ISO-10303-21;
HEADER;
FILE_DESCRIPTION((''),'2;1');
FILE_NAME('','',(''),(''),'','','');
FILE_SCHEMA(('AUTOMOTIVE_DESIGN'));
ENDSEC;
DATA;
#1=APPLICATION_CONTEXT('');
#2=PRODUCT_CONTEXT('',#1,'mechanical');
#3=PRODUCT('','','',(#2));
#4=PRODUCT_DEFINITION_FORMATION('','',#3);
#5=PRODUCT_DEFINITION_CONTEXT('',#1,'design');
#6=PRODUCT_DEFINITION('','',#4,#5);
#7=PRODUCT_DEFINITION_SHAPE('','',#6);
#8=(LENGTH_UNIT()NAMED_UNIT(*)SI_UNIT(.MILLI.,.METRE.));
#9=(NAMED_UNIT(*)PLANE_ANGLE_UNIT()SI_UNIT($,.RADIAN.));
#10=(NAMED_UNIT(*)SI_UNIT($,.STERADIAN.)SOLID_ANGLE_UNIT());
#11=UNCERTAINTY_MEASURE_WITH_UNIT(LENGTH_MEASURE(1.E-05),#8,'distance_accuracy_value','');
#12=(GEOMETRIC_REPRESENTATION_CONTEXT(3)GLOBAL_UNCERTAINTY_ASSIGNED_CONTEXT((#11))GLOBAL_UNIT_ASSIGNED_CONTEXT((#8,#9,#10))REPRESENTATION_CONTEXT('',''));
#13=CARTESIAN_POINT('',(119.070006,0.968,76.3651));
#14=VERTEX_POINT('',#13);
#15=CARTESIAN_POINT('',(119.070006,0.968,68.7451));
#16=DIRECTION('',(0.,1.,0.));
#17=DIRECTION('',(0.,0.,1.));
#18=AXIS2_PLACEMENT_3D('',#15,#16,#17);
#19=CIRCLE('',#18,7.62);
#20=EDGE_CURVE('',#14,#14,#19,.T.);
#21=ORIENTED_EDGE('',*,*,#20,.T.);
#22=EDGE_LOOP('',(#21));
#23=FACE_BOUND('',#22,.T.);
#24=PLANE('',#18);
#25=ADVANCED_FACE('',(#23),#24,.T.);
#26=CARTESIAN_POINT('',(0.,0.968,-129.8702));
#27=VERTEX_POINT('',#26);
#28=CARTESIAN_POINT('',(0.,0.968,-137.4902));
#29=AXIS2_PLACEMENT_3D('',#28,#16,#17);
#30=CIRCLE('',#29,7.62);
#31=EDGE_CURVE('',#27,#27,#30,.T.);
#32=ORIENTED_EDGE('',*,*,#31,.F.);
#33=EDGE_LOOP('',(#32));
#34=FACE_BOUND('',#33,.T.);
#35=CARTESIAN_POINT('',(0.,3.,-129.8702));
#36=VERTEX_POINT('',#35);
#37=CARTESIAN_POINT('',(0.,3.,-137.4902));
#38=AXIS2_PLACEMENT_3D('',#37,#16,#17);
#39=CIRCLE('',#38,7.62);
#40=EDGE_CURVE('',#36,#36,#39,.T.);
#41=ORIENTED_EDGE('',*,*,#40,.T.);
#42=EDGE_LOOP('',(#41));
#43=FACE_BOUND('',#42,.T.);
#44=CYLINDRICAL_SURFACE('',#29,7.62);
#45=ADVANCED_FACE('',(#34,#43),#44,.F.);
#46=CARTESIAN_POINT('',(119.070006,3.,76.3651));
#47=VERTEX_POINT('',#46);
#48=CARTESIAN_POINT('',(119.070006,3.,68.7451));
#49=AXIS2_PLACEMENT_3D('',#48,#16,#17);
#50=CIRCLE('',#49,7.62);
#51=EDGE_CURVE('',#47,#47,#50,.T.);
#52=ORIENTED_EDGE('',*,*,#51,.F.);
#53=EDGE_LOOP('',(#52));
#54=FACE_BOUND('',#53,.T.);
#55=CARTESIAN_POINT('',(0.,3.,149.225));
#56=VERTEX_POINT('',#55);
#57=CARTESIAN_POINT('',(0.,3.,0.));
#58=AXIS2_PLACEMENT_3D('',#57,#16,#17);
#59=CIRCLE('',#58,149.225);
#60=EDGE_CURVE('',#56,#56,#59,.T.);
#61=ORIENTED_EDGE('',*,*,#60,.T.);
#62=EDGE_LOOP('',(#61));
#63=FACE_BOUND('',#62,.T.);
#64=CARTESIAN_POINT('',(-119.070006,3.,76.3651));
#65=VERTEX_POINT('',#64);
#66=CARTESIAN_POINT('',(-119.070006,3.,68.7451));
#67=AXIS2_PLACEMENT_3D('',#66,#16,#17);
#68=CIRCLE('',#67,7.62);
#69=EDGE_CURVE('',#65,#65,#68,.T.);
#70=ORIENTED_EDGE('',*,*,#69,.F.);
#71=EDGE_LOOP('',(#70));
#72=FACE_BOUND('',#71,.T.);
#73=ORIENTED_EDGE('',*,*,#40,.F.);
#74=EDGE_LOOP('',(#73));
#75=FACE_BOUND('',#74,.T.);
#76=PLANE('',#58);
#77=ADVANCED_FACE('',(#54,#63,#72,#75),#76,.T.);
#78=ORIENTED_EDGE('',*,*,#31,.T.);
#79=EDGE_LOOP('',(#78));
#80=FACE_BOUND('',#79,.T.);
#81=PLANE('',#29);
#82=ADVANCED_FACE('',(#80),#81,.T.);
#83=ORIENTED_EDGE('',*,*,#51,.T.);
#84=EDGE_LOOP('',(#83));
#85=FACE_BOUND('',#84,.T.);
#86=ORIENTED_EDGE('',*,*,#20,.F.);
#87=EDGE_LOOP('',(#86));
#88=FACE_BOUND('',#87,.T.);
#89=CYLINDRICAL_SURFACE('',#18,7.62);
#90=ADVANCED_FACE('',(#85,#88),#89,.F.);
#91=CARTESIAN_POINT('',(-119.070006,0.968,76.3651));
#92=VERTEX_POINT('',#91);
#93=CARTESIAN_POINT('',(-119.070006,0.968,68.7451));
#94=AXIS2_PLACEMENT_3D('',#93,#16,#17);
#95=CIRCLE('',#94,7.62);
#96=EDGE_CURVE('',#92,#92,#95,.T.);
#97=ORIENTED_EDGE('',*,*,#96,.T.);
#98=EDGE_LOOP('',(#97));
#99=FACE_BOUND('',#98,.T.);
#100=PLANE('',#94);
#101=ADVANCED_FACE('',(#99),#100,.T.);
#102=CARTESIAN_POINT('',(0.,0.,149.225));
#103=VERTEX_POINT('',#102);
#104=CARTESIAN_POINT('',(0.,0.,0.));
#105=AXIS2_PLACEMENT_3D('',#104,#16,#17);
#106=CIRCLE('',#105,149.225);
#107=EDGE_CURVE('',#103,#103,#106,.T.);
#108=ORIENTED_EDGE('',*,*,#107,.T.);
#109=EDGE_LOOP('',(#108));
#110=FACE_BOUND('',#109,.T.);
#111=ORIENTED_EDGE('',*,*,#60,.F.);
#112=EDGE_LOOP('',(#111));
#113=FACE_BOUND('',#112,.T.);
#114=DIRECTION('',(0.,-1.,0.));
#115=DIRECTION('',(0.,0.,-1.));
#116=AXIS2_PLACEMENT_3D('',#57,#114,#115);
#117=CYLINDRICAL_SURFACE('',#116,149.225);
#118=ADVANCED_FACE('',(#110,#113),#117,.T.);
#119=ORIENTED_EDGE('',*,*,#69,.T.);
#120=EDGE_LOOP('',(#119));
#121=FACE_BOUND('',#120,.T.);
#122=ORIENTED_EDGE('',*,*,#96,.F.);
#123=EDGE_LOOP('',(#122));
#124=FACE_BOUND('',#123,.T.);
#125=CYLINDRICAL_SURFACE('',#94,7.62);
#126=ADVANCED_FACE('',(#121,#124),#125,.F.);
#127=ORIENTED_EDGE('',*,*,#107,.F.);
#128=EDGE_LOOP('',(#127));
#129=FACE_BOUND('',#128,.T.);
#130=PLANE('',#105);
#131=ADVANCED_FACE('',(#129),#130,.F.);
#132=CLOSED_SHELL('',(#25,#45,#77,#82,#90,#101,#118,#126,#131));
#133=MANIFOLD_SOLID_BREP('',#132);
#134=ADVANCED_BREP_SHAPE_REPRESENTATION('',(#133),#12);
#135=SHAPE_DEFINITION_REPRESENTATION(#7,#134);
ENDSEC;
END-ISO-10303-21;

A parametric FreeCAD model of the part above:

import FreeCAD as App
import Part
import Sketcher

V = App.Vector
Q = App.Units.Quantity

doc = App.newDocument("Part")
body = doc.addObject("PartDesign::Body", "Body")

sketch1 = body.newObject("Sketcher::SketchObject", "Sketch")
sketch1.AttachmentSupport = (doc.getObject("XZ_Plane"), [""])
sketch1.MapMode = "FlatFace"
sketch1.addGeometry(Part.Circle(V(0, 0, 0), V(0, 0, 1), 149), False)
sketch1.addConstraint(Sketcher.Constraint("Coincident", 0, 3, -1, 1))
sketch1.addConstraint(Sketcher.Constraint("Diameter", 0, Q("11.75 in")))
pad1 = body.newObject("PartDesign::Pad", "Pad")
pad1.Profile = sketch1
pad1.Length = 3
pad1.Reversed = True

sketch2 = body.newObject("Sketcher::SketchObject", "Sketch001")
sketch2.AttachmentSupport = (doc.getObject("XZ_Plane"), [""])
sketch2.MapMode = "FlatFace"
sketch2.AttachmentOffset = App.Placement(V(0, 0, -3), App.Rotation())
sketch2.addGeometry(Part.Circle(V(0, -137, 0), V(0, 0, 1), 8), False)
sketch2.addGeometry(Part.Circle(V(119, 69, 0), V(0, 0, 1), 8), False)
sketch2.addGeometry(Part.Circle(V(-119, 69, 0), V(0, 0, 1), 8), False)
sketch2.addConstraint(Sketcher.Constraint("Equal", 0, 1))
sketch2.addConstraint(Sketcher.Constraint("Equal", 1, 2))
sketch2.addConstraint(Sketcher.Constraint("Symmetric", 1, 3, 2, 3, -2))
sketch2.addConstraint(Sketcher.Constraint("PointOnObject", 0, 3, -2))
sketch2.addConstraint(Sketcher.Constraint("Diameter", 0, Q("0.6 in")))
sketch2.addConstraint(Sketcher.Constraint("DistanceY", 0, 3, -1, 1, Q("5.413 in")))
sketch2.addConstraint(Sketcher.Constraint("DistanceY", -1, 1, 1, 3, Q("2.7065 in")))
sketch2.addConstraint(Sketcher.Constraint("DistanceX", 2, 3, 1, 3, 238.140012))
pocket1 = body.newObject("PartDesign::Pocket", "Pocket")
pocket1.Profile = sketch2
pocket1.Length = Q("0.08 in")
pocket1.Reversed = True

doc.recompute()
